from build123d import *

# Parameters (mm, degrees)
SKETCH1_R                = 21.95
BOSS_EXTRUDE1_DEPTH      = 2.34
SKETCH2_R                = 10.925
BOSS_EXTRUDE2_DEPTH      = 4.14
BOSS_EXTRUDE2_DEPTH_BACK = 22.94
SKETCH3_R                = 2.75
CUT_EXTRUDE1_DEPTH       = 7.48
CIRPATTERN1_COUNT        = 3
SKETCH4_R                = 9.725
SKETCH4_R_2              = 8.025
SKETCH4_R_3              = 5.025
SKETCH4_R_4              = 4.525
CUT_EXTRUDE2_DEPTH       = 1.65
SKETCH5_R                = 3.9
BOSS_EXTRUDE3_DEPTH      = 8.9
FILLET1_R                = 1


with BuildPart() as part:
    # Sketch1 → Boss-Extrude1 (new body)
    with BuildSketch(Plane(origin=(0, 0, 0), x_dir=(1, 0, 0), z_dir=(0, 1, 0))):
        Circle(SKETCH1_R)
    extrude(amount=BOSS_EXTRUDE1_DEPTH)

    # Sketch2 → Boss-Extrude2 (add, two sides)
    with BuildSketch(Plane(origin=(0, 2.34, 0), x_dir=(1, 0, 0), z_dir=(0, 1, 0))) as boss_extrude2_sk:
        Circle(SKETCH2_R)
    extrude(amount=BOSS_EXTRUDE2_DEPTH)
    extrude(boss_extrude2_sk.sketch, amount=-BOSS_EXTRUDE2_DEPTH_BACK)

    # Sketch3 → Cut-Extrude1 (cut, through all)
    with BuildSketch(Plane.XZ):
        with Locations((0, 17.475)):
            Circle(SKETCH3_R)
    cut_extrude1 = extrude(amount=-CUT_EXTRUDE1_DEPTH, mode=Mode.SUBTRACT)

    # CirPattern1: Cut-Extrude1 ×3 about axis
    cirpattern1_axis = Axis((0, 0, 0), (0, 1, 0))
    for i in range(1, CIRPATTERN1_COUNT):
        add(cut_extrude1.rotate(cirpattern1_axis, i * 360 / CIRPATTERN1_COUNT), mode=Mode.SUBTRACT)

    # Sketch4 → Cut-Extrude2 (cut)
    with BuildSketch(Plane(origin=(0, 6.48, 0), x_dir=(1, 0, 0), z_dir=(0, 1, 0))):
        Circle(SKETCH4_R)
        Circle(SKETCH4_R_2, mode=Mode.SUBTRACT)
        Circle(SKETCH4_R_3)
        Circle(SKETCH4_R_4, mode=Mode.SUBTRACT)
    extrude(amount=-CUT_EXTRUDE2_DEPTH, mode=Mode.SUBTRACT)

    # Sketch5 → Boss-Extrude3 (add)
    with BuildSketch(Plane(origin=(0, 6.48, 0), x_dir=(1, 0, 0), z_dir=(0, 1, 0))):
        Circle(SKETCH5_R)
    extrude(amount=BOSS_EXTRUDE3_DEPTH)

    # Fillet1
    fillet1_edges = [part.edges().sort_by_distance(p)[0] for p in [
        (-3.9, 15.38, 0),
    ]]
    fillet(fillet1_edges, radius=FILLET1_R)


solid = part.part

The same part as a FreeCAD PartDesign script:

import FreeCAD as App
import Part
import Sketcher
from FreeCAD import Vector
Q = App.Units.Quantity


def edges_at(feature, points):
    """Names of the edges that pass closest to the given points."""
    edges = feature.Shape.Edges
    near = lambda p: min(range(len(edges)), key=lambda i: edges[i].distToShape(Part.Vertex(*p))[0])
    return sorted({f"Edge{near(p) + 1}" for p in points})

doc = App.newDocument("Part")
body = doc.addObject("PartDesign::Body", "Body")

# Sketch on XZ plane
sketch1 = doc.addObject("Sketcher::SketchObject", "Sketch")
body.addObject(sketch1)
sketch1.AttachmentSupport = (doc.XZ_Plane, [""])
sketch1.MapMode = "FlatFace"
sketch1.addGeometry(Part.Circle(Vector(0, 0, 0), Vector(0, 0, 1), 21.95), False)
sketch1.addConstraint([
    Sketcher.Constraint("Coincident", 0, 3, -1, 1),
    Sketcher.Constraint("Diameter", 0, Q("43.9 mm")),
])
pad1 = doc.addObject("PartDesign::Pad", "Pad")
body.addObject(pad1)
pad1.Profile = sketch1
pad1.Length = 2.34
pad1.Reversed = True

# Sketch on XZ plane
sketch2 = doc.addObject("Sketcher::SketchObject", "Sketch001")
body.addObject(sketch2)
sketch2.AttachmentSupport = (doc.XZ_Plane, [""])
sketch2.MapMode = "FlatFace"
sketch2.AttachmentOffset = App.Placement(Vector(0, 0, -2.34), App.Rotation())
sketch2.addGeometry(Part.Circle(Vector(0, 0, 0), Vector(0, 0, 1), 10.925), False)
sketch2.addConstraint([
    Sketcher.Constraint("Coincident", 0, 3, -1, 1),
    Sketcher.Constraint("Diameter", 0, Q("21.85 mm")),
])
pad2 = doc.addObject("PartDesign::Pad", "Pad001")
body.addObject(pad2)
pad2.Profile = sketch2
pad2.Type = "TwoLengths"
pad2.Length = 4.14
pad2.Length2 = 22.94
pad2.Reversed = True

# Sketch on XZ plane
sketch3 = doc.addObject("Sketcher::SketchObject", "Sketch002")
body.addObject(sketch3)
sketch3.AttachmentSupport = (doc.XZ_Plane, [""])
sketch3.MapMode = "FlatFace"
sketch3.addGeometry(Part.Circle(Vector(0, 17.475, 0), Vector(0, 0, 1), 2.75), False)
sketch3.addConstraint([
    Sketcher.Constraint("PointOnObject", 0, 3, -2),
    Sketcher.Constraint("Diameter", 0, Q("5.5 mm")),
    Sketcher.Constraint("DistanceY", -1, 1, 0, 3, Q("17.475 mm")),
])
pocket1 = doc.addObject("PartDesign::Pocket", "Pocket")
body.addObject(pocket1)
pocket1.Profile = sketch3
pocket1.Type = "ThroughAll"
doc.recompute()

polarpattern = doc.addObject("PartDesign::PolarPattern", "PolarPattern")
body.addObject(polarpattern)
polarpattern.Originals = [pocket1]
polarpattern.Axis = (doc.Y_Axis, [""])
polarpattern.Angle = 360
polarpattern.Occurrences = 3
body.Tip = polarpattern

# Sketch on XZ plane
sketch4 = doc.addObject("Sketcher::SketchObject", "Sketch003")
body.addObject(sketch4)
sketch4.AttachmentSupport = (doc.XZ_Plane, [""])
sketch4.MapMode = "FlatFace"
sketch4.AttachmentOffset = App.Placement(Vector(0, 0, -6.48), App.Rotation())
sketch4.addGeometry([
    Part.Circle(Vector(0, 0, 0), Vector(0, 0, 1), 9.725),
    Part.Circle(Vector(0, 0, 0), Vector(0, 0, 1), 8.025),
    Part.Circle(Vector(0, 0, 0), Vector(0, 0, 1), 5.025),
    Part.Circle(Vector(0, 0, 0), Vector(0, 0, 1), 4.525),
], False)
sketch4.addConstraint([
    Sketcher.Constraint("Coincident", 0, 3, -1, 1),
    Sketcher.Constraint("Coincident", 1, 3, -1, 1),
    Sketcher.Constraint("Coincident", 2, 3, -1, 1),
    Sketcher.Constraint("Coincident", 3, 3, -1, 1),
    Sketcher.Constraint("Diameter", 0, Q("19.45 mm")),
    Sketcher.Constraint("Diameter", 1, Q("16.05 mm")),
    Sketcher.Constraint("Diameter", 2, Q("10.05 mm")),
    Sketcher.Constraint("Diameter", 3, Q("9.05 mm")),
])
pocket2 = doc.addObject("PartDesign::Pocket", "Pocket001")
body.addObject(pocket2)
pocket2.Profile = sketch4
pocket2.Length = 1.65
pocket2.Reversed = True

# Sketch on XZ plane
sketch5 = doc.addObject("Sketcher::SketchObject", "Sketch004")
body.addObject(sketch5)
sketch5.AttachmentSupport = (doc.XZ_Plane, [""])
sketch5.MapMode = "FlatFace"
sketch5.AttachmentOffset = App.Placement(Vector(0, 0, -6.48), App.Rotation())
sketch5.addGeometry(Part.Circle(Vector(0, 0, 0), Vector(0, 0, 1), 3.9), False)
sketch5.addConstraint([
    Sketcher.Constraint("Coincident", 0, 3, -1, 1),
    Sketcher.Constraint("Diameter", 0, Q("7.8 mm")),
])
pad3 = doc.addObject("PartDesign::Pad", "Pad002")
body.addObject(pad3)
pad3.Profile = sketch5
pad3.Length = 8.9
pad3.Reversed = True
doc.recompute()

fillet = doc.addObject("PartDesign::Fillet", "Fillet")
body.addObject(fillet)
fillet.Base = (pad3, edges_at(pad3, [(-3.9, 15.38, 0)]))
fillet.Radius = 1

doc.recompute()
